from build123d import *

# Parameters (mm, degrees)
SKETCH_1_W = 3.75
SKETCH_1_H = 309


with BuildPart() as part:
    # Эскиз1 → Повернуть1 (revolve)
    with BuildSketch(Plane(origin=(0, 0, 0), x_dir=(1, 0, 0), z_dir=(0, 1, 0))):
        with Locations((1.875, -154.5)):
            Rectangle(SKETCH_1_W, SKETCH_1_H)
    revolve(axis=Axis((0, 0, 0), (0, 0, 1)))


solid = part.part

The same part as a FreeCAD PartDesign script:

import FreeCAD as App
import Part
import Sketcher

V = App.Vector
Q = App.Units.Quantity

doc = App.newDocument("Part")
body = doc.addObject("PartDesign::Body", "Body")

# Sketch on XZ plane
sketch1 = doc.addObject("Sketcher::SketchObject", "Sketch")
body.addObject(sketch1)
sketch1.AttachmentSupport = (doc.XZ_Plane, [""])
sketch1.MapMode = "FlatFace"
sketch1.addGeometry(Part.LineSegment(V(0, 0, 0), V(0, 309, 0)), False)
sketch1.addGeometry(Part.LineSegment(V(0, 309, 0), V(3.8, 309, 0)), False)
sketch1.addGeometry(Part.LineSegment(V(3.8, 309, 0), V(3.8, 0, 0)), False)
sketch1.addGeometry(Part.LineSegment(V(3.8, 0, 0), V(0, 0, 0)), False)
sketch1.addConstraint(Sketcher.Constraint("Coincident", 0, 2, 1, 1))
sketch1.addConstraint(Sketcher.Constraint("Coincident", 1, 2, 2, 1))
sketch1.addConstraint(Sketcher.Constraint("Coincident", 2, 2, 3, 1))
sketch1.addConstraint(Sketcher.Constraint("Coincident", 3, 2, 0, 1))
sketch1.addConstraint(Sketcher.Constraint("Vertical", 0))
sketch1.addConstraint(Sketcher.Constraint("Horizontal", 1))
sketch1.addConstraint(Sketcher.Constraint("Vertical", 2))
sketch1.addConstraint(Sketcher.Constraint("Horizontal", 3))
sketch1.addConstraint(Sketcher.Constraint("Coincident", 3, 2, -1, 1))
sketch1.addConstraint(Sketcher.Constraint("DistanceY", 0, 1, 0, 2, Q("309 mm")))
sketch1.addConstraint(Sketcher.Constraint("DistanceX", 1, 1, 1, 2, Q("3.75 mm")))
revolution = doc.addObject("PartDesign::Revolution", "Revolution")
body.addObject(revolution)
revolution.Profile = sketch1
revolution.ReferenceAxis = (sketch1, ["V_Axis"])
revolution.Angle = 360

doc.recompute()
